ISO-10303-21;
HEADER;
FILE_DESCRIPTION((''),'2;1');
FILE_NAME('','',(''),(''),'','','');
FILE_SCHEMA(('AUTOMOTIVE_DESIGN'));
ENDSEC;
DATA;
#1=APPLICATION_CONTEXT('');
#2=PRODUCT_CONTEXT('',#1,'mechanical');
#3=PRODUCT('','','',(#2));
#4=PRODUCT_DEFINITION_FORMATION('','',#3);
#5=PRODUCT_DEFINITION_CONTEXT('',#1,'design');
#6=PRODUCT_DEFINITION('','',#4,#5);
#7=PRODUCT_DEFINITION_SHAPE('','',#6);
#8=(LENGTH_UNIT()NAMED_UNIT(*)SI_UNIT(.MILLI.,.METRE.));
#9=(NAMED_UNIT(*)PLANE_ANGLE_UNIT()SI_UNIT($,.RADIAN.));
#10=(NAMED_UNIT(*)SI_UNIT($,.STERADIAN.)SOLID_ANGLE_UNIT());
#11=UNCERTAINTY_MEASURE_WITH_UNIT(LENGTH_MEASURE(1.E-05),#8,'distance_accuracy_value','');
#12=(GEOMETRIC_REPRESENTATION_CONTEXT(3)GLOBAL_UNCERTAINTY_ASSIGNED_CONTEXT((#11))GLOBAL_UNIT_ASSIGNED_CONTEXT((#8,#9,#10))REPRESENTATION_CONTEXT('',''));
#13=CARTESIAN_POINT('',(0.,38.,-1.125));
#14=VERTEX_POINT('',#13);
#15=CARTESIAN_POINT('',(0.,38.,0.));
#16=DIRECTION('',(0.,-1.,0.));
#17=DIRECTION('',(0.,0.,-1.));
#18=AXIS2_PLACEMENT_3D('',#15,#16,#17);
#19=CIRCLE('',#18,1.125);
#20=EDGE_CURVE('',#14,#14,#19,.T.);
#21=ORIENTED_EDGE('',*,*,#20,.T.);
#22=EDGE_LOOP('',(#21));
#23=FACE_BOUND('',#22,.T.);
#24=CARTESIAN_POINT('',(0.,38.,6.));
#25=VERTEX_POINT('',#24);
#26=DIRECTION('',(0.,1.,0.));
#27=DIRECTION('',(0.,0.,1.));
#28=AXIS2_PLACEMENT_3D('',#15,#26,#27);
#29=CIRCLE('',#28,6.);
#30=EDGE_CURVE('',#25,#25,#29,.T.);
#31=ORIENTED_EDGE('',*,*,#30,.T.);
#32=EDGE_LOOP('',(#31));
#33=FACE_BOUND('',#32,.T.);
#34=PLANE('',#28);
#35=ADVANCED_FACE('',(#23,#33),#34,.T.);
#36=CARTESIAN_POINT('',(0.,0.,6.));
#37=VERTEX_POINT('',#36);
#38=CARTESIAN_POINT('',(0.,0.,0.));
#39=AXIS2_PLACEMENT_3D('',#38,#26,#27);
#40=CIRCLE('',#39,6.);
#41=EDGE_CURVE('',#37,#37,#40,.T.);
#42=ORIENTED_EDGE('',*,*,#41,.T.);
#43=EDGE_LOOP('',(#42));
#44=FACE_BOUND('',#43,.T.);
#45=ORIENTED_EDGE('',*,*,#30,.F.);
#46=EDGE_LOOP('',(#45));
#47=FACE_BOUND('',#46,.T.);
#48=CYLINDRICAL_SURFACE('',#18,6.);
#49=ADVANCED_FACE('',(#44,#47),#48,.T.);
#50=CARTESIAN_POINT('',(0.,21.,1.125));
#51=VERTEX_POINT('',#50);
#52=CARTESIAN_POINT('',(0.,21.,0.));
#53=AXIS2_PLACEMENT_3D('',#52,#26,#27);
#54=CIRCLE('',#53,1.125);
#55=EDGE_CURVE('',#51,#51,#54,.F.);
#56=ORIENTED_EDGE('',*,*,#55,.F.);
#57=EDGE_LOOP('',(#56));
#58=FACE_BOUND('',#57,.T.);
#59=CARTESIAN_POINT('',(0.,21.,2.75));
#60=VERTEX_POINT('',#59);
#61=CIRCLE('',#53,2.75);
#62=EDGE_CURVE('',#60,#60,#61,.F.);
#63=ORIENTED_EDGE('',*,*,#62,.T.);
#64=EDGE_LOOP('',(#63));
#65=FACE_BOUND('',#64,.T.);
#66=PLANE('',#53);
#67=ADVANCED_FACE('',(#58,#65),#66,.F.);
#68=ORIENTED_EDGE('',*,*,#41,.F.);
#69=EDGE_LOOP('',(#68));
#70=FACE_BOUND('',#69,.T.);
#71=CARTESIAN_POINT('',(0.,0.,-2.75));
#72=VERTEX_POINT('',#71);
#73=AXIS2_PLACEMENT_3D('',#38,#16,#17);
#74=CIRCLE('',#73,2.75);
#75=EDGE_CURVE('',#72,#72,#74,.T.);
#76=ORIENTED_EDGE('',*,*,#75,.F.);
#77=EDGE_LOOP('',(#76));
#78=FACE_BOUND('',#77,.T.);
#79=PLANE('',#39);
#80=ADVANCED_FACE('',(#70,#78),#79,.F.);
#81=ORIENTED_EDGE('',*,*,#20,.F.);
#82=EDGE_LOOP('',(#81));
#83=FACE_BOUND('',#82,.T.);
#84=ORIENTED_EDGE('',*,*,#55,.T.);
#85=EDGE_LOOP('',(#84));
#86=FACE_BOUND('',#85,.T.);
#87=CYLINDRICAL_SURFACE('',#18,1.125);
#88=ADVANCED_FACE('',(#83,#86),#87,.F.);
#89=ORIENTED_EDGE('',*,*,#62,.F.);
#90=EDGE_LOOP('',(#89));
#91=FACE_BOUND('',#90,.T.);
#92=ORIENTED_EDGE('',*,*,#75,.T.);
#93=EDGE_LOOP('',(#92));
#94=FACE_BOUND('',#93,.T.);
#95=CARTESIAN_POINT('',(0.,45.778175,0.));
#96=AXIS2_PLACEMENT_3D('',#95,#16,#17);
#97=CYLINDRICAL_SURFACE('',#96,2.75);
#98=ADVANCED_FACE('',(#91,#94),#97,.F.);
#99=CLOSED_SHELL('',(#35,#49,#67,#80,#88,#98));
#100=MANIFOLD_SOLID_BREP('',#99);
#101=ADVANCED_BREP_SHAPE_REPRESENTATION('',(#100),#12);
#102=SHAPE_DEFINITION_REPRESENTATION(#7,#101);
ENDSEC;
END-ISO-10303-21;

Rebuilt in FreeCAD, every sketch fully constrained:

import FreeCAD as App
import Part
import Sketcher

V = App.Vector

doc = App.newDocument("Part")
body = doc.addObject("PartDesign::Body", "Body")

# Sketch on XZ plane
sketch1 = doc.addObject("Sketcher::SketchObject", "Sketch")
body.addObject(sketch1)
sketch1.AttachmentSupport = (doc.XZ_Plane, [""])
sketch1.MapMode = "FlatFace"
sketch1.addGeometry(Part.Circle(V(0, 0, 0), V(0, 0, 1), 6), False)
sketch1.addConstraint(Sketcher.Constraint("Coincident", 0, 3, -1, 1))
sketch1.addConstraint(Sketcher.Constraint("Diameter", 0, 12.0))
pad1 = doc.addObject("PartDesign::Pad", "Pad")
body.addObject(pad1)
pad1.Profile = sketch1
pad1.Length = 38
pad1.Reversed = True

# Sketch on XZ plane
sketch2 = doc.addObject("Sketcher::SketchObject", "Sketch001")
body.addObject(sketch2)
sketch2.AttachmentSupport = (doc.XZ_Plane, [""])
sketch2.MapMode = "FlatFace"
sketch2.addGeometry(Part.Circle(V(0, 0, 0), V(0, 0, 1), 1.1), False)
sketch2.addConstraint(Sketcher.Constraint("Coincident", 0, 3, -1, 1))
sketch2.addConstraint(Sketcher.Constraint("Diameter", 0, 2.25))
pocket1 = doc.addObject("PartDesign::Pocket", "Pocket")
body.addObject(pocket1)
pocket1.Profile = sketch2
pocket1.Type = "ThroughAll"

# Sketch on XZ plane
sketch3 = doc.addObject("Sketcher::SketchObject", "Sketch002")
body.addObject(sketch3)
sketch3.AttachmentSupport = (doc.XZ_Plane, [""])
sketch3.MapMode = "FlatFace"
sketch3.addGeometry(Part.Circle(V(0, 0, 0), V(0, 0, 1), 2.8), False)
sketch3.addConstraint(Sketcher.Constraint("Coincident", 0, 3, -1, 1))
sketch3.addConstraint(Sketcher.Constraint("Diameter", 0, 5.5))
pocket2 = doc.addObject("PartDesign::Pocket", "Pocket001")
body.addObject(pocket2)
pocket2.Profile = sketch3
pocket2.Length = 21

doc.recompute()
